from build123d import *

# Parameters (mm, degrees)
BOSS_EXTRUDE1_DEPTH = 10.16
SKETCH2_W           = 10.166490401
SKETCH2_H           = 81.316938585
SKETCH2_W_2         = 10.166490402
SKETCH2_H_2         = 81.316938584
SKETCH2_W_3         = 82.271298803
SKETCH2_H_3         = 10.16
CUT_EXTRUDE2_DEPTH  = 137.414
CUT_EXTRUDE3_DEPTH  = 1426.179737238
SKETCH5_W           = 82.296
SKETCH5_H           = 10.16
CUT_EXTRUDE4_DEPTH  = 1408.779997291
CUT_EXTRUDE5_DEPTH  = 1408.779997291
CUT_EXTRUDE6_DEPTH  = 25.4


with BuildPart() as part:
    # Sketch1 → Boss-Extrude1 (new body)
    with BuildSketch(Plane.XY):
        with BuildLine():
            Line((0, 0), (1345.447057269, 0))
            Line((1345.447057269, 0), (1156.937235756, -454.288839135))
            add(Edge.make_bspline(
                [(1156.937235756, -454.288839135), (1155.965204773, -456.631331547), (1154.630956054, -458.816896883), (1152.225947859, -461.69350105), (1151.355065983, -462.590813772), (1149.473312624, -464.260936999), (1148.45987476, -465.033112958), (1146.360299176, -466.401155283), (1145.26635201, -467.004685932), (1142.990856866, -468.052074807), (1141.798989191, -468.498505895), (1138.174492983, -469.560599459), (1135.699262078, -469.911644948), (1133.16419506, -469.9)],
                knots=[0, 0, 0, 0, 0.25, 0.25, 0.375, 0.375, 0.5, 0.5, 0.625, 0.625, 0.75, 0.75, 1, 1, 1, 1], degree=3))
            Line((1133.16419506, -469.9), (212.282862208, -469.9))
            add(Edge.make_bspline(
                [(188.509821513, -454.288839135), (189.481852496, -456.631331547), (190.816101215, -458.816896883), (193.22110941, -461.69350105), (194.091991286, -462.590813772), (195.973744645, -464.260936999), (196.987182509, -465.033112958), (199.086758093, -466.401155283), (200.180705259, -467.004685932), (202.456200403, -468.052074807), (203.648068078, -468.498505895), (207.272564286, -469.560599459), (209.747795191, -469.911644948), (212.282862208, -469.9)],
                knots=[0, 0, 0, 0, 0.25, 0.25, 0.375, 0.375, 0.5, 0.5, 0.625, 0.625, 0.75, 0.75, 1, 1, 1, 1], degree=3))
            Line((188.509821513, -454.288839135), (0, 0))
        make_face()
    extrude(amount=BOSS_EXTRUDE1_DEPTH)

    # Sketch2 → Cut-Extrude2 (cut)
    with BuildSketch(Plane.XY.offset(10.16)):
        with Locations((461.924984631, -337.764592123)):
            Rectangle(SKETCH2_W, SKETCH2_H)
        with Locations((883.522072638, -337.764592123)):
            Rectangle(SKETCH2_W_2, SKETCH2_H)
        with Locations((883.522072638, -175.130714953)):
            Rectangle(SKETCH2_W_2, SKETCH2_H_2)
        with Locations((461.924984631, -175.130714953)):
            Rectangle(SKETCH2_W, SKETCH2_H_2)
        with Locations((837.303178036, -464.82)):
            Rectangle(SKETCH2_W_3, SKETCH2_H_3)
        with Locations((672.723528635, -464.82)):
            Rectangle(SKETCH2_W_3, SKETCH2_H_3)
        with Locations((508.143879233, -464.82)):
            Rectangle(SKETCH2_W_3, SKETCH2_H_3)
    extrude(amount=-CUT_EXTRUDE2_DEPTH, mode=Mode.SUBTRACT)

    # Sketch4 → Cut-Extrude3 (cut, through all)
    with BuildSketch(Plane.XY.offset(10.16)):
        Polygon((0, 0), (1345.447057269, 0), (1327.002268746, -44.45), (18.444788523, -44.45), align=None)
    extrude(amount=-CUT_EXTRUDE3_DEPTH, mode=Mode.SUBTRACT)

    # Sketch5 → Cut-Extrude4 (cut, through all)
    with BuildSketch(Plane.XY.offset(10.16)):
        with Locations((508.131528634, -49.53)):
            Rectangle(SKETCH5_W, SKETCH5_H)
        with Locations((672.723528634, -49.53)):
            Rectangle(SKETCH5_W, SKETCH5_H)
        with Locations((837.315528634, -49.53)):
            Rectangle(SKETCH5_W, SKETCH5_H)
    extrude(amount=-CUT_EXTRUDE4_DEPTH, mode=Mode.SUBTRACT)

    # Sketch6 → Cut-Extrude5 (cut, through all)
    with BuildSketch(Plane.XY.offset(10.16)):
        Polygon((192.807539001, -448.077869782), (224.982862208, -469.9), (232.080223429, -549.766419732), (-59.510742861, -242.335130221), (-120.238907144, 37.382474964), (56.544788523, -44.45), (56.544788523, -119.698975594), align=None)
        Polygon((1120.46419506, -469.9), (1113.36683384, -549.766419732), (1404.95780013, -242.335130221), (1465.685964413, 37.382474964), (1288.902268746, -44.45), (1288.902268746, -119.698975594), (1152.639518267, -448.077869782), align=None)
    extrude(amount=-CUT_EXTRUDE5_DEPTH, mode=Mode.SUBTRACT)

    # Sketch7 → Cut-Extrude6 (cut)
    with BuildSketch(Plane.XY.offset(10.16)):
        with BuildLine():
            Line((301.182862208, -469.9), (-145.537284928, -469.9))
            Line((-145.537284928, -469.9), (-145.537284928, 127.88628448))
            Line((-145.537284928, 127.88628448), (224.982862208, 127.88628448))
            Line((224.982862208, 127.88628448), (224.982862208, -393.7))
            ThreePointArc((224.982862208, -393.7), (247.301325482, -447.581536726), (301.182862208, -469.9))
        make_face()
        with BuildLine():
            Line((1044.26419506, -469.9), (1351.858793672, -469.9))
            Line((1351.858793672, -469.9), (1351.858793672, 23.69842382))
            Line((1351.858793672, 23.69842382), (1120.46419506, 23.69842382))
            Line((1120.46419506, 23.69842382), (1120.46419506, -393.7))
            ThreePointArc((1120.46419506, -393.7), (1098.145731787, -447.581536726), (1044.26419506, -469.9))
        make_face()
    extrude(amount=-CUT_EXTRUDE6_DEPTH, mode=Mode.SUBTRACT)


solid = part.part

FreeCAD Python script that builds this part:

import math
import FreeCAD as App
import Part
import Sketcher
Q = App.Units.Quantity


def add_polygon(sketch, points):
    """Adds a closed chain of lines whose ends are joined by coincident constraints."""
    first, n = sketch.GeometryCount, len(points)
    for a, b in zip(points, points[1:] + points[:1]):
        sketch.addGeometry(Part.LineSegment(App.Vector(*a, 0), App.Vector(*b, 0)), False)
    for i in range(n):
        sketch.addConstraint(Sketcher.Constraint("Coincident", first + i, 2, first + (i + 1) % n, 1))

doc = App.newDocument("Part")
body = doc.addObject("PartDesign::Body", "Body")

# Sketch on XY plane
sketch1 = body.newObject("Sketcher::SketchObject", "Sketch")
sketch1.AttachmentSupport = (doc.getObject("XY_Plane"), [""])
sketch1.MapMode = "FlatFace"
sketch1.addGeometry(Part.LineSegment(App.Vector(1345.447057, 0, 0), App.Vector(0, 0, 0)), False)
sketch1.addGeometry(Part.LineSegment(App.Vector(0, 0, 0), App.Vector(188.509822, -454.288839, 0)), False)
sketch1.addGeometry(Part.BSplineCurve([App.Vector(188.509822, -454.288839, 0), App.Vector(189.481852, -456.631332, 0), App.Vector(190.816101, -458.816897, 0), App.Vector(193.221109, -461.693501, 0), App.Vector(194.091991, -462.590814, 0), App.Vector(195.973745, -464.260937, 0), App.Vector(196.987183, -465.033113, 0), App.Vector(199.086758, -466.401155, 0), App.Vector(200.180705, -467.004686, 0), App.Vector(202.4562, -468.052075, 0), App.Vector(203.648068, -468.498506, 0), App.Vector(207.272564, -469.560599, 0), App.Vector(209.747795, -469.911645, 0), App.Vector(212.282862, -469.9, 0)], [4, 2, 2, 2, 2, 2, 4], [0, 0.25, 0.375, 0.5, 0.625, 0.75, 1], False, 3, [1, 1, 1, 1, 1, 1, 1, 1, 1, 1, 1, 1, 1, 1], False), False)
sketch1.addGeometry(Part.LineSegment(App.Vector(212.282862, -469.9, 0), App.Vector(1133.164195, -469.9, 0)), False)
sketch1.addGeometry(Part.BSplineCurve([App.Vector(1156.937236, -454.288839, 0), App.Vector(1155.965205, -456.631332, 0), App.Vector(1154.630956, -458.816897, 0), App.Vector(1152.225948, -461.693501, 0), App.Vector(1151.355066, -462.590814, 0), App.Vector(1149.473313, -464.260937, 0), App.Vector(1148.459875, -465.033113, 0), App.Vector(1146.360299, -466.401155, 0), App.Vector(1145.266352, -467.004686, 0), App.Vector(1142.990857, -468.052075, 0), App.Vector(1141.798989, -468.498506, 0), App.Vector(1138.174493, -469.560599, 0), App.Vector(1135.699262, -469.911645, 0), App.Vector(1133.164195, -469.9, 0)], [4, 2, 2, 2, 2, 2, 4], [0, 0.25, 0.375, 0.5, 0.625, 0.75, 1], False, 3, [1, 1, 1, 1, 1, 1, 1, 1, 1, 1, 1, 1, 1, 1], False), False)
sketch1.addGeometry(Part.LineSegment(App.Vector(1156.937236, -454.288839, 0), App.Vector(1345.447057, 0, 0)), False)
sketch1.addConstraint(Sketcher.Constraint("Block", 2))
sketch1.addConstraint(Sketcher.Constraint("Block", 4))
sketch1.addConstraint(Sketcher.Constraint("Coincident", 0, 2, 1, 1))
sketch1.addConstraint(Sketcher.Constraint("Coincident", 1, 2, 2, 1))
sketch1.addConstraint(Sketcher.Constraint("Coincident", 2, 2, 3, 1))
sketch1.addConstraint(Sketcher.Constraint("Coincident", 3, 2, 4, 2))
sketch1.addConstraint(Sketcher.Constraint("Coincident", 4, 1, 5, 1))
sketch1.addConstraint(Sketcher.Constraint("Coincident", 5, 2, 0, 1))
sketch1.addConstraint(Sketcher.Constraint("Horizontal", 0))
sketch1.addConstraint(Sketcher.Constraint("Coincident", 0, 2, -1, 1))
sketch1.addConstraint(Sketcher.Constraint("Equal", 1, 5))
pad1 = body.newObject("PartDesign::Pad", "Pad")
pad1.Profile = sketch1
pad1.Length = Q("0.4 in")

# Sketch on XY plane
sketch2 = body.newObject("Sketcher::SketchObject", "Sketch001")
sketch2.AttachmentSupport = (doc.getObject("XY_Plane"), [""])
sketch2.MapMode = "FlatFace"
sketch2.AttachmentOffset = App.Placement(App.Vector(0, 0, 0.4 * 25.4), App.Rotation())
add_polygon(sketch2, [(457, -297), (457, -378), (467, -378), (467, -297)])  # lines 0-3
add_polygon(sketch2, [(878, -297), (878, -378), (889, -378), (889, -297)])  # lines 4-7
add_polygon(sketch2, [(878, -134), (878, -216), (889, -216), (889, -134)])  # lines 8-11
add_polygon(sketch2, [(457, -134), (457, -216), (467, -216), (467, -134)])  # lines 12-15
add_polygon(sketch2, [(796, -460), (796, -470), (878, -470), (878, -460)])  # lines 16-19
add_polygon(sketch2, [(632, -460), (632, -470), (714, -470), (714, -460)])  # lines 20-23
add_polygon(sketch2, [(467, -460), (467, -470), (549, -470), (549, -460)])  # lines 24-27
sketch2.addConstraint(Sketcher.Constraint("Vertical", 0))
sketch2.addConstraint(Sketcher.Constraint("Horizontal", 1))
sketch2.addConstraint(Sketcher.Constraint("Vertical", 2))
sketch2.addConstraint(Sketcher.Constraint("Horizontal", 3))
sketch2.addConstraint(Sketcher.Constraint("Vertical", 4))
sketch2.addConstraint(Sketcher.Constraint("Horizontal", 5))
sketch2.addConstraint(Sketcher.Constraint("Vertical", 6))
sketch2.addConstraint(Sketcher.Constraint("Horizontal", 7))
sketch2.addConstraint(Sketcher.Constraint("Vertical", 8))
sketch2.addConstraint(Sketcher.Constraint("Horizontal", 9))
sketch2.addConstraint(Sketcher.Constraint("Vertical", 10))
sketch2.addConstraint(Sketcher.Constraint("Horizontal", 11))
sketch2.addConstraint(Sketcher.Constraint("Vertical", 12))
sketch2.addConstraint(Sketcher.Constraint("Horizontal", 13))
sketch2.addConstraint(Sketcher.Constraint("Vertical", 14))
sketch2.addConstraint(Sketcher.Constraint("Horizontal", 15))
sketch2.addConstraint(Sketcher.Constraint("Vertical", 16))
sketch2.addConstraint(Sketcher.Constraint("Horizontal", 17))
sketch2.addConstraint(Sketcher.Constraint("Vertical", 18))
sketch2.addConstraint(Sketcher.Constraint("Horizontal", 19))
sketch2.addConstraint(Sketcher.Constraint("Vertical", 20))
sketch2.addConstraint(Sketcher.Constraint("Horizontal", 21))
sketch2.addConstraint(Sketcher.Constraint("Vertical", 22))
sketch2.addConstraint(Sketcher.Constraint("Horizontal", 23))
sketch2.addConstraint(Sketcher.Constraint("Vertical", 24))
sketch2.addConstraint(Sketcher.Constraint("Horizontal", 25))
sketch2.addConstraint(Sketcher.Constraint("Vertical", 26))
sketch2.addConstraint(Sketcher.Constraint("Horizontal", 27))
sketch2.addConstraint(Sketcher.Constraint("Horizontal", 1, 2, 4, 2))
sketch2.addConstraint(Sketcher.Constraint("Horizontal", 3, 2, 6, 2))
sketch2.addConstraint(Sketcher.Constraint("Horizontal", 9, 2, 12, 2))
sketch2.addConstraint(Sketcher.Constraint("Horizontal", 11, 2, 14, 2))
sketch2.addConstraint(Sketcher.Constraint("Horizontal", 17, 2, 20, 2))
sketch2.addConstraint(Sketcher.Constraint("Horizontal", 19, 2, 22, 2))
sketch2.addConstraint(Sketcher.Constraint("Horizontal", 21, 2, 24, 2))
sketch2.addConstraint(Sketcher.Constraint("Horizontal", 23, 2, 26, 2))
sketch2.addConstraint(Sketcher.Constraint("Vertical", 7, 2, 8, 2))
sketch2.addConstraint(Sketcher.Constraint("Vertical", 6, 2, 9, 2))
sketch2.addConstraint(Sketcher.Constraint("Vertical", 3, 2, 12, 2))
sketch2.addConstraint(Sketcher.Constraint("Vertical", 2, 2, 13, 2))
sketch2.addConstraint(Sketcher.Constraint("Vertical", 11, 2, 17, 2))
sketch2.addConstraint(Sketcher.Constraint("Vertical", 14, 2, 24, 2))
sketch2.addConstraint(Sketcher.Constraint("Equal", 3, 5))
sketch2.addConstraint(Sketcher.Constraint("Equal", 19, 21))
sketch2.addConstraint(Sketcher.Constraint("Equal", 23, 25))
sketch2.addConstraint(Sketcher.Constraint("Equal", 6, 8))
sketch2.addConstraint(Sketcher.Constraint("DistanceY", 16, 2, 16, 1, Q("0.4 in")))
sketch2.addConstraint(Sketcher.Constraint("DistanceY", 16, 2, -1, 1, Q("18.5 in")))
sketch2.addConstraint(Sketcher.Constraint("DistanceX", 17, 1, 17, 2, Q("82.271299 mm")))
sketch2.addConstraint(Sketcher.Constraint("DistanceX", 1, 1, 1, 2, Q("10.16649 mm")))
sketch2.addConstraint(Sketcher.Constraint("DistanceY", 0, 2, 0, 1, Q("81.316939 mm")))
sketch2.addConstraint(Sketcher.Constraint("DistanceX", -1, 1, 0, 2, Q("456.841739 mm")))
sketch2.addConstraint(Sketcher.Constraint("DistanceY", 0, 2, -1, 1, Q("378.423061 mm")))
sketch2.addConstraint(Sketcher.Constraint("DistanceX", -1, 1, 16, 2, Q("796.167529 mm")))
sketch2.addConstraint(Sketcher.Constraint("DistanceX", -1, 1, 20, 2, Q("631.587879 mm")))
sketch2.addConstraint(Sketcher.Constraint("DistanceY", 7, 2, 8, 2, Q("81.316939 mm")))
pocket1 = body.newObject("PartDesign::Pocket", "Pocket")
pocket1.Profile = sketch2
pocket1.Length = Q("5.41 in")

# Sketch on XY plane
sketch3 = body.newObject("Sketcher::SketchObject", "Sketch002")
sketch3.AttachmentSupport = (doc.getObject("XY_Plane"), [""])
sketch3.MapMode = "FlatFace"
sketch3.AttachmentOffset = App.Placement(App.Vector(0, 0, 0.4 * 25.4), App.Rotation())
add_polygon(sketch3, [(1345, 0), (0, 0), (18, -44), (1327, -44)])  # lines 0-3
sketch3.addConstraint(Sketcher.Constraint("Horizontal", 0))
sketch3.addConstraint(Sketcher.Constraint("Horizontal", 2))
sketch3.addConstraint(Sketcher.Constraint("Coincident", 0, 2, -1, 1))
sketch3.addConstraint(Sketcher.Constraint("Equal", 1, 3))
sketch3.addConstraint(Sketcher.Constraint("DistanceY", 1, 2, -1, 1, Q("1.75 in")))
sketch3.addConstraint(Sketcher.Constraint("DistanceX", 2, 1, 2, 2, Q("1308.55748 mm")))
sketch3.addConstraint(Sketcher.Constraint("Distance", 1, Q("48.12497 mm")))
pocket2 = body.newObject("PartDesign::Pocket", "Pocket001")
pocket2.Profile = sketch3
pocket2.Type = "ThroughAll"

# Sketch on XY plane
sketch4 = body.newObject("Sketcher::SketchObject", "Sketch003")
sketch4.AttachmentSupport = (doc.getObject("XY_Plane"), [""])
sketch4.MapMode = "FlatFace"
sketch4.AttachmentOffset = App.Placement(App.Vector(0, 0, 0.4 * 25.4), App.Rotation())
add_polygon(sketch4, [(467, -44), (467, -55), (549, -55), (549, -44)])  # lines 0-3
add_polygon(sketch4, [(632, -44), (632, -55), (714, -55), (714, -44)])  # lines 4-7
add_polygon(sketch4, [(796, -44), (796, -55), (878, -55), (878, -44)])  # lines 8-11
sketch4.addConstraint(Sketcher.Constraint("Vertical", 0))
sketch4.addConstraint(Sketcher.Constraint("Horizontal", 1))
sketch4.addConstraint(Sketcher.Constraint("Vertical", 2))
sketch4.addConstraint(Sketcher.Constraint("Horizontal", 3))
sketch4.addConstraint(Sketcher.Constraint("Vertical", 4))
sketch4.addConstraint(Sketcher.Constraint("Horizontal", 5))
sketch4.addConstraint(Sketcher.Constraint("Vertical", 6))
sketch4.addConstraint(Sketcher.Constraint("Horizontal", 7))
sketch4.addConstraint(Sketcher.Constraint("Vertical", 8))
sketch4.addConstraint(Sketcher.Constraint("Horizontal", 9))
sketch4.addConstraint(Sketcher.Constraint("Vertical", 10))
sketch4.addConstraint(Sketcher.Constraint("Horizontal", 11))
sketch4.addConstraint(Sketcher.Constraint("Horizontal", 1, 2, 4, 2))
sketch4.addConstraint(Sketcher.Constraint("Horizontal", 3, 2, 6, 2))
sketch4.addConstraint(Sketcher.Constraint("Horizontal", 5, 2, 8, 2))
sketch4.addConstraint(Sketcher.Constraint("Horizontal", 7, 2, 10, 2))
sketch4.addConstraint(Sketcher.Constraint("Equal", 3, 5))
sketch4.addConstraint(Sketcher.Constraint("Equal", 7, 9))
sketch4.addConstraint(Sketcher.Constraint("DistanceY", 0, 2, 0, 1, Q("0.4 in")))
sketch4.addConstraint(Sketcher.Constraint("DistanceX", 1, 1, 1, 2, Q("3.24 in")))
sketch4.addConstraint(Sketcher.Constraint("DistanceY", 0, 2, -1, 1, Q("2.15 in")))
sketch4.addConstraint(Sketcher.Constraint("DistanceX", 1, 2, 4, 2, Q("3.24 in")))
sketch4.addConstraint(Sketcher.Constraint("DistanceX", 5, 2, 8, 2, Q("3.24 in")))
sketch4.addConstraint(Sketcher.Constraint("DistanceX", -1, 1, 0, 2, Q("466.983529 mm")))
pocket3 = body.newObject("PartDesign::Pocket", "Pocket002")
pocket3.Profile = sketch4
pocket3.Type = "ThroughAll"

# Sketch on XY plane
sketch5 = body.newObject("Sketcher::SketchObject", "Sketch004")
sketch5.AttachmentSupport = (doc.getObject("XY_Plane"), [""])
sketch5.MapMode = "FlatFace"
sketch5.AttachmentOffset = App.Placement(App.Vector(0, 0, 0.4 * 25.4), App.Rotation())
add_polygon(sketch5, [(225, -470), (193, -448), (57, -120), (57, -44), (-120, 37), (-60, -242), (232, -550)])  # lines 0-6
add_polygon(sketch5, [(1120, -470), (1113, -550), (1405, -242), (1466, 37), (1289, -44), (1289, -120), (1153, -448)])  # lines 7-13
sketch5.addConstraint(Sketcher.Constraint("Vertical", 2))
sketch5.addConstraint(Sketcher.Constraint("Vertical", 11))
sketch5.addConstraint(Sketcher.Constraint("Horizontal", 5, 2, 7, 2))
sketch5.addConstraint(Sketcher.Constraint("Horizontal", 4, 2, 8, 2))
sketch5.addConstraint(Sketcher.Constraint("Horizontal", 3, 2, 9, 2))
sketch5.addConstraint(Sketcher.Constraint("Horizontal", 2, 2, 10, 2))
sketch5.addConstraint(Sketcher.Constraint("Horizontal", 1, 2, 11, 2))
sketch5.addConstraint(Sketcher.Constraint("Horizontal", 0, 2, 12, 2))
sketch5.addConstraint(Sketcher.Constraint("Horizontal", 6, 2, 13, 2))
sketch5.addConstraint(Sketcher.Constraint("Equal", 6, 7))
sketch5.addConstraint(Sketcher.Constraint("Equal", 5, 8))
sketch5.addConstraint(Sketcher.Constraint("Equal", 4, 9))
sketch5.addConstraint(Sketcher.Constraint("Equal", 3, 10))
sketch5.addConstraint(Sketcher.Constraint("Equal", 1, 12))
sketch5.addConstraint(Sketcher.Constraint("DistanceY", 6, 2, -1, 1, Q("18.5 in")))
sketch5.addConstraint(Sketcher.Constraint("DistanceY", 2, 2, -1, 1, Q("1.75 in")))
sketch5.addConstraint(Sketcher.Constraint("DistanceX", -1, 1, 8, 2, Q("1404.9578 mm")))
sketch5.addConstraint(Sketcher.Constraint("Distance", 0, Q("38.877459 mm")))
sketch5.addConstraint(Sketcher.Constraint("Distance", 5, Q("423.720768 mm")))
sketch5.addConstraint(Sketcher.Constraint("DistanceY", 2, 1, 2, 2, Q("75.248976 mm")))
sketch5.addConstraint(Sketcher.Constraint("DistanceX", -1, 1, 0, 2, Q("192.807539 mm")))
sketch5.addConstraint(Sketcher.Constraint("DistanceY", 0, 2, -1, 1, Q("448.07787 mm")))
sketch5.addConstraint(Sketcher.Constraint("DistanceX", -1, 1, 1, 2, Q("56.544789 mm")))
sketch5.addConstraint(Sketcher.Constraint("DistanceY", 4, 2, -1, 1, Q("242.33513 mm")))
sketch5.addConstraint(Sketcher.Constraint("DistanceY", 5, 2, -1, 1, Q("549.76642 mm")))
sketch5.addConstraint(Sketcher.Constraint("DistanceX", -1, 1, 10, 2, Q("1288.902269 mm")))
sketch5.addConstraint(Sketcher.Constraint("DistanceY", 1, 2, 3, 2, Q("157.081451 mm")))
sketch5.addConstraint(Sketcher.Constraint("DistanceX", 3, 2, 5, 2, Q("352.319131 mm")))
pocket4 = body.newObject("PartDesign::Pocket", "Pocket003")
pocket4.Profile = sketch5
pocket4.Type = "ThroughAll"

# Sketch on XY plane
sketch6 = body.newObject("Sketcher::SketchObject", "Sketch005")
sketch6.AttachmentSupport = (doc.getObject("XY_Plane"), [""])
sketch6.MapMode = "FlatFace"
sketch6.AttachmentOffset = App.Placement(App.Vector(0, 0, 0.4 * 25.4), App.Rotation())
sketch6.addGeometry(Part.LineSegment(App.Vector(-146, -470, 0), App.Vector(301, -470, 0)), False)
sketch6.addGeometry(Part.ArcOfCircle(Part.Circle(App.Vector(301, -394, 0), App.Vector(0, 0, 1), 76), math.radians(-180), math.radians(-90)), False)
sketch6.addGeometry(Part.LineSegment(App.Vector(225, -394, 0), App.Vector(225, 128, 0)), False)
sketch6.addGeometry(Part.LineSegment(App.Vector(225, 128, 0), App.Vector(-146, 128, 0)), False)
sketch6.addGeometry(Part.LineSegment(App.Vector(-146, 128, 0), App.Vector(-146, -470, 0)), False)
sketch6.addGeometry(Part.LineSegment(App.Vector(1044, -470, 0), App.Vector(1352, -470, 0)), False)
sketch6.addGeometry(Part.LineSegment(App.Vector(1352, -470, 0), App.Vector(1352, 24, 0)), False)
sketch6.addGeometry(Part.LineSegment(App.Vector(1352, 24, 0), App.Vector(1120, 24, 0)), False)
sketch6.addGeometry(Part.LineSegment(App.Vector(1120, 24, 0), App.Vector(1120, -394, 0)), False)
sketch6.addGeometry(Part.ArcOfCircle(Part.Circle(App.Vector(1044, -394, 0), App.Vector(0, 0, 1), 76), math.radians(-90), math.radians(0)), False)
sketch6.addConstraint(Sketcher.Constraint("Tangent", 0, 2, 1, 2))
sketch6.addConstraint(Sketcher.Constraint("Tangent", 1, 1, 2, 1))
sketch6.addConstraint(Sketcher.Constraint("Coincident", 2, 2, 3, 1))
sketch6.addConstraint(Sketcher.Constraint("Coincident", 3, 2, 4, 1))
sketch6.addConstraint(Sketcher.Constraint("Coincident", 4, 2, 0, 1))
sketch6.addConstraint(Sketcher.Constraint("Coincident", 5, 2, 6, 1))
sketch6.addConstraint(Sketcher.Constraint("Coincident", 6, 2, 7, 1))
sketch6.addConstraint(Sketcher.Constraint("Coincident", 7, 2, 8, 1))
sketch6.addConstraint(Sketcher.Constraint("Tangent", 8, 2, 9, 2))
sketch6.addConstraint(Sketcher.Constraint("Tangent", 9, 1, 5, 1))
sketch6.addConstraint(Sketcher.Constraint("Horizontal", 0))
sketch6.addConstraint(Sketcher.Constraint("Vertical", 2))
sketch6.addConstraint(Sketcher.Constraint("Horizontal", 3))
sketch6.addConstraint(Sketcher.Constraint("Vertical", 4))
sketch6.addConstraint(Sketcher.Constraint("Horizontal", 5))
sketch6.addConstraint(Sketcher.Constraint("Vertical", 6))
sketch6.addConstraint(Sketcher.Constraint("Horizontal", 7))
sketch6.addConstraint(Sketcher.Constraint("Vertical", 8))
sketch6.addConstraint(Sketcher.Constraint("Equal", 1, 9))
sketch6.addConstraint(Sketcher.Constraint("Horizontal", 1, 3, 9, 3))
sketch6.addConstraint(Sketcher.Constraint("Radius", 1, Q("3 in")))
sketch6.addConstraint(Sketcher.Constraint("DistanceY", 1, 3, -1, 1, Q("15.5 in")))
sketch6.addConstraint(Sketcher.Constraint("DistanceX", 5, 1, 5, 2, Q("307.594599 mm")))
sketch6.addConstraint(Sketcher.Constraint("DistanceX", 0, 1, 0, 2, Q("446.720147 mm")))
sketch6.addConstraint(Sketcher.Constraint("DistanceY", 2, 1, 2, 2, Q("521.586284 mm")))
sketch6.addConstraint(Sketcher.Constraint("DistanceY", 6, 1, 6, 2, Q("493.598424 mm")))
sketch6.addConstraint(Sketcher.Constraint("DistanceX", 3, 2, 9, 3, Q("1189.80148 mm")))
sketch6.addConstraint(Sketcher.Constraint("DistanceX", -1, 1, 1, 3, Q("301.182862 mm")))
pocket5 = body.newObject("PartDesign::Pocket", "Pocket004")
pocket5.Profile = sketch6
pocket5.Length = Q("1 in")

doc.recompute()
